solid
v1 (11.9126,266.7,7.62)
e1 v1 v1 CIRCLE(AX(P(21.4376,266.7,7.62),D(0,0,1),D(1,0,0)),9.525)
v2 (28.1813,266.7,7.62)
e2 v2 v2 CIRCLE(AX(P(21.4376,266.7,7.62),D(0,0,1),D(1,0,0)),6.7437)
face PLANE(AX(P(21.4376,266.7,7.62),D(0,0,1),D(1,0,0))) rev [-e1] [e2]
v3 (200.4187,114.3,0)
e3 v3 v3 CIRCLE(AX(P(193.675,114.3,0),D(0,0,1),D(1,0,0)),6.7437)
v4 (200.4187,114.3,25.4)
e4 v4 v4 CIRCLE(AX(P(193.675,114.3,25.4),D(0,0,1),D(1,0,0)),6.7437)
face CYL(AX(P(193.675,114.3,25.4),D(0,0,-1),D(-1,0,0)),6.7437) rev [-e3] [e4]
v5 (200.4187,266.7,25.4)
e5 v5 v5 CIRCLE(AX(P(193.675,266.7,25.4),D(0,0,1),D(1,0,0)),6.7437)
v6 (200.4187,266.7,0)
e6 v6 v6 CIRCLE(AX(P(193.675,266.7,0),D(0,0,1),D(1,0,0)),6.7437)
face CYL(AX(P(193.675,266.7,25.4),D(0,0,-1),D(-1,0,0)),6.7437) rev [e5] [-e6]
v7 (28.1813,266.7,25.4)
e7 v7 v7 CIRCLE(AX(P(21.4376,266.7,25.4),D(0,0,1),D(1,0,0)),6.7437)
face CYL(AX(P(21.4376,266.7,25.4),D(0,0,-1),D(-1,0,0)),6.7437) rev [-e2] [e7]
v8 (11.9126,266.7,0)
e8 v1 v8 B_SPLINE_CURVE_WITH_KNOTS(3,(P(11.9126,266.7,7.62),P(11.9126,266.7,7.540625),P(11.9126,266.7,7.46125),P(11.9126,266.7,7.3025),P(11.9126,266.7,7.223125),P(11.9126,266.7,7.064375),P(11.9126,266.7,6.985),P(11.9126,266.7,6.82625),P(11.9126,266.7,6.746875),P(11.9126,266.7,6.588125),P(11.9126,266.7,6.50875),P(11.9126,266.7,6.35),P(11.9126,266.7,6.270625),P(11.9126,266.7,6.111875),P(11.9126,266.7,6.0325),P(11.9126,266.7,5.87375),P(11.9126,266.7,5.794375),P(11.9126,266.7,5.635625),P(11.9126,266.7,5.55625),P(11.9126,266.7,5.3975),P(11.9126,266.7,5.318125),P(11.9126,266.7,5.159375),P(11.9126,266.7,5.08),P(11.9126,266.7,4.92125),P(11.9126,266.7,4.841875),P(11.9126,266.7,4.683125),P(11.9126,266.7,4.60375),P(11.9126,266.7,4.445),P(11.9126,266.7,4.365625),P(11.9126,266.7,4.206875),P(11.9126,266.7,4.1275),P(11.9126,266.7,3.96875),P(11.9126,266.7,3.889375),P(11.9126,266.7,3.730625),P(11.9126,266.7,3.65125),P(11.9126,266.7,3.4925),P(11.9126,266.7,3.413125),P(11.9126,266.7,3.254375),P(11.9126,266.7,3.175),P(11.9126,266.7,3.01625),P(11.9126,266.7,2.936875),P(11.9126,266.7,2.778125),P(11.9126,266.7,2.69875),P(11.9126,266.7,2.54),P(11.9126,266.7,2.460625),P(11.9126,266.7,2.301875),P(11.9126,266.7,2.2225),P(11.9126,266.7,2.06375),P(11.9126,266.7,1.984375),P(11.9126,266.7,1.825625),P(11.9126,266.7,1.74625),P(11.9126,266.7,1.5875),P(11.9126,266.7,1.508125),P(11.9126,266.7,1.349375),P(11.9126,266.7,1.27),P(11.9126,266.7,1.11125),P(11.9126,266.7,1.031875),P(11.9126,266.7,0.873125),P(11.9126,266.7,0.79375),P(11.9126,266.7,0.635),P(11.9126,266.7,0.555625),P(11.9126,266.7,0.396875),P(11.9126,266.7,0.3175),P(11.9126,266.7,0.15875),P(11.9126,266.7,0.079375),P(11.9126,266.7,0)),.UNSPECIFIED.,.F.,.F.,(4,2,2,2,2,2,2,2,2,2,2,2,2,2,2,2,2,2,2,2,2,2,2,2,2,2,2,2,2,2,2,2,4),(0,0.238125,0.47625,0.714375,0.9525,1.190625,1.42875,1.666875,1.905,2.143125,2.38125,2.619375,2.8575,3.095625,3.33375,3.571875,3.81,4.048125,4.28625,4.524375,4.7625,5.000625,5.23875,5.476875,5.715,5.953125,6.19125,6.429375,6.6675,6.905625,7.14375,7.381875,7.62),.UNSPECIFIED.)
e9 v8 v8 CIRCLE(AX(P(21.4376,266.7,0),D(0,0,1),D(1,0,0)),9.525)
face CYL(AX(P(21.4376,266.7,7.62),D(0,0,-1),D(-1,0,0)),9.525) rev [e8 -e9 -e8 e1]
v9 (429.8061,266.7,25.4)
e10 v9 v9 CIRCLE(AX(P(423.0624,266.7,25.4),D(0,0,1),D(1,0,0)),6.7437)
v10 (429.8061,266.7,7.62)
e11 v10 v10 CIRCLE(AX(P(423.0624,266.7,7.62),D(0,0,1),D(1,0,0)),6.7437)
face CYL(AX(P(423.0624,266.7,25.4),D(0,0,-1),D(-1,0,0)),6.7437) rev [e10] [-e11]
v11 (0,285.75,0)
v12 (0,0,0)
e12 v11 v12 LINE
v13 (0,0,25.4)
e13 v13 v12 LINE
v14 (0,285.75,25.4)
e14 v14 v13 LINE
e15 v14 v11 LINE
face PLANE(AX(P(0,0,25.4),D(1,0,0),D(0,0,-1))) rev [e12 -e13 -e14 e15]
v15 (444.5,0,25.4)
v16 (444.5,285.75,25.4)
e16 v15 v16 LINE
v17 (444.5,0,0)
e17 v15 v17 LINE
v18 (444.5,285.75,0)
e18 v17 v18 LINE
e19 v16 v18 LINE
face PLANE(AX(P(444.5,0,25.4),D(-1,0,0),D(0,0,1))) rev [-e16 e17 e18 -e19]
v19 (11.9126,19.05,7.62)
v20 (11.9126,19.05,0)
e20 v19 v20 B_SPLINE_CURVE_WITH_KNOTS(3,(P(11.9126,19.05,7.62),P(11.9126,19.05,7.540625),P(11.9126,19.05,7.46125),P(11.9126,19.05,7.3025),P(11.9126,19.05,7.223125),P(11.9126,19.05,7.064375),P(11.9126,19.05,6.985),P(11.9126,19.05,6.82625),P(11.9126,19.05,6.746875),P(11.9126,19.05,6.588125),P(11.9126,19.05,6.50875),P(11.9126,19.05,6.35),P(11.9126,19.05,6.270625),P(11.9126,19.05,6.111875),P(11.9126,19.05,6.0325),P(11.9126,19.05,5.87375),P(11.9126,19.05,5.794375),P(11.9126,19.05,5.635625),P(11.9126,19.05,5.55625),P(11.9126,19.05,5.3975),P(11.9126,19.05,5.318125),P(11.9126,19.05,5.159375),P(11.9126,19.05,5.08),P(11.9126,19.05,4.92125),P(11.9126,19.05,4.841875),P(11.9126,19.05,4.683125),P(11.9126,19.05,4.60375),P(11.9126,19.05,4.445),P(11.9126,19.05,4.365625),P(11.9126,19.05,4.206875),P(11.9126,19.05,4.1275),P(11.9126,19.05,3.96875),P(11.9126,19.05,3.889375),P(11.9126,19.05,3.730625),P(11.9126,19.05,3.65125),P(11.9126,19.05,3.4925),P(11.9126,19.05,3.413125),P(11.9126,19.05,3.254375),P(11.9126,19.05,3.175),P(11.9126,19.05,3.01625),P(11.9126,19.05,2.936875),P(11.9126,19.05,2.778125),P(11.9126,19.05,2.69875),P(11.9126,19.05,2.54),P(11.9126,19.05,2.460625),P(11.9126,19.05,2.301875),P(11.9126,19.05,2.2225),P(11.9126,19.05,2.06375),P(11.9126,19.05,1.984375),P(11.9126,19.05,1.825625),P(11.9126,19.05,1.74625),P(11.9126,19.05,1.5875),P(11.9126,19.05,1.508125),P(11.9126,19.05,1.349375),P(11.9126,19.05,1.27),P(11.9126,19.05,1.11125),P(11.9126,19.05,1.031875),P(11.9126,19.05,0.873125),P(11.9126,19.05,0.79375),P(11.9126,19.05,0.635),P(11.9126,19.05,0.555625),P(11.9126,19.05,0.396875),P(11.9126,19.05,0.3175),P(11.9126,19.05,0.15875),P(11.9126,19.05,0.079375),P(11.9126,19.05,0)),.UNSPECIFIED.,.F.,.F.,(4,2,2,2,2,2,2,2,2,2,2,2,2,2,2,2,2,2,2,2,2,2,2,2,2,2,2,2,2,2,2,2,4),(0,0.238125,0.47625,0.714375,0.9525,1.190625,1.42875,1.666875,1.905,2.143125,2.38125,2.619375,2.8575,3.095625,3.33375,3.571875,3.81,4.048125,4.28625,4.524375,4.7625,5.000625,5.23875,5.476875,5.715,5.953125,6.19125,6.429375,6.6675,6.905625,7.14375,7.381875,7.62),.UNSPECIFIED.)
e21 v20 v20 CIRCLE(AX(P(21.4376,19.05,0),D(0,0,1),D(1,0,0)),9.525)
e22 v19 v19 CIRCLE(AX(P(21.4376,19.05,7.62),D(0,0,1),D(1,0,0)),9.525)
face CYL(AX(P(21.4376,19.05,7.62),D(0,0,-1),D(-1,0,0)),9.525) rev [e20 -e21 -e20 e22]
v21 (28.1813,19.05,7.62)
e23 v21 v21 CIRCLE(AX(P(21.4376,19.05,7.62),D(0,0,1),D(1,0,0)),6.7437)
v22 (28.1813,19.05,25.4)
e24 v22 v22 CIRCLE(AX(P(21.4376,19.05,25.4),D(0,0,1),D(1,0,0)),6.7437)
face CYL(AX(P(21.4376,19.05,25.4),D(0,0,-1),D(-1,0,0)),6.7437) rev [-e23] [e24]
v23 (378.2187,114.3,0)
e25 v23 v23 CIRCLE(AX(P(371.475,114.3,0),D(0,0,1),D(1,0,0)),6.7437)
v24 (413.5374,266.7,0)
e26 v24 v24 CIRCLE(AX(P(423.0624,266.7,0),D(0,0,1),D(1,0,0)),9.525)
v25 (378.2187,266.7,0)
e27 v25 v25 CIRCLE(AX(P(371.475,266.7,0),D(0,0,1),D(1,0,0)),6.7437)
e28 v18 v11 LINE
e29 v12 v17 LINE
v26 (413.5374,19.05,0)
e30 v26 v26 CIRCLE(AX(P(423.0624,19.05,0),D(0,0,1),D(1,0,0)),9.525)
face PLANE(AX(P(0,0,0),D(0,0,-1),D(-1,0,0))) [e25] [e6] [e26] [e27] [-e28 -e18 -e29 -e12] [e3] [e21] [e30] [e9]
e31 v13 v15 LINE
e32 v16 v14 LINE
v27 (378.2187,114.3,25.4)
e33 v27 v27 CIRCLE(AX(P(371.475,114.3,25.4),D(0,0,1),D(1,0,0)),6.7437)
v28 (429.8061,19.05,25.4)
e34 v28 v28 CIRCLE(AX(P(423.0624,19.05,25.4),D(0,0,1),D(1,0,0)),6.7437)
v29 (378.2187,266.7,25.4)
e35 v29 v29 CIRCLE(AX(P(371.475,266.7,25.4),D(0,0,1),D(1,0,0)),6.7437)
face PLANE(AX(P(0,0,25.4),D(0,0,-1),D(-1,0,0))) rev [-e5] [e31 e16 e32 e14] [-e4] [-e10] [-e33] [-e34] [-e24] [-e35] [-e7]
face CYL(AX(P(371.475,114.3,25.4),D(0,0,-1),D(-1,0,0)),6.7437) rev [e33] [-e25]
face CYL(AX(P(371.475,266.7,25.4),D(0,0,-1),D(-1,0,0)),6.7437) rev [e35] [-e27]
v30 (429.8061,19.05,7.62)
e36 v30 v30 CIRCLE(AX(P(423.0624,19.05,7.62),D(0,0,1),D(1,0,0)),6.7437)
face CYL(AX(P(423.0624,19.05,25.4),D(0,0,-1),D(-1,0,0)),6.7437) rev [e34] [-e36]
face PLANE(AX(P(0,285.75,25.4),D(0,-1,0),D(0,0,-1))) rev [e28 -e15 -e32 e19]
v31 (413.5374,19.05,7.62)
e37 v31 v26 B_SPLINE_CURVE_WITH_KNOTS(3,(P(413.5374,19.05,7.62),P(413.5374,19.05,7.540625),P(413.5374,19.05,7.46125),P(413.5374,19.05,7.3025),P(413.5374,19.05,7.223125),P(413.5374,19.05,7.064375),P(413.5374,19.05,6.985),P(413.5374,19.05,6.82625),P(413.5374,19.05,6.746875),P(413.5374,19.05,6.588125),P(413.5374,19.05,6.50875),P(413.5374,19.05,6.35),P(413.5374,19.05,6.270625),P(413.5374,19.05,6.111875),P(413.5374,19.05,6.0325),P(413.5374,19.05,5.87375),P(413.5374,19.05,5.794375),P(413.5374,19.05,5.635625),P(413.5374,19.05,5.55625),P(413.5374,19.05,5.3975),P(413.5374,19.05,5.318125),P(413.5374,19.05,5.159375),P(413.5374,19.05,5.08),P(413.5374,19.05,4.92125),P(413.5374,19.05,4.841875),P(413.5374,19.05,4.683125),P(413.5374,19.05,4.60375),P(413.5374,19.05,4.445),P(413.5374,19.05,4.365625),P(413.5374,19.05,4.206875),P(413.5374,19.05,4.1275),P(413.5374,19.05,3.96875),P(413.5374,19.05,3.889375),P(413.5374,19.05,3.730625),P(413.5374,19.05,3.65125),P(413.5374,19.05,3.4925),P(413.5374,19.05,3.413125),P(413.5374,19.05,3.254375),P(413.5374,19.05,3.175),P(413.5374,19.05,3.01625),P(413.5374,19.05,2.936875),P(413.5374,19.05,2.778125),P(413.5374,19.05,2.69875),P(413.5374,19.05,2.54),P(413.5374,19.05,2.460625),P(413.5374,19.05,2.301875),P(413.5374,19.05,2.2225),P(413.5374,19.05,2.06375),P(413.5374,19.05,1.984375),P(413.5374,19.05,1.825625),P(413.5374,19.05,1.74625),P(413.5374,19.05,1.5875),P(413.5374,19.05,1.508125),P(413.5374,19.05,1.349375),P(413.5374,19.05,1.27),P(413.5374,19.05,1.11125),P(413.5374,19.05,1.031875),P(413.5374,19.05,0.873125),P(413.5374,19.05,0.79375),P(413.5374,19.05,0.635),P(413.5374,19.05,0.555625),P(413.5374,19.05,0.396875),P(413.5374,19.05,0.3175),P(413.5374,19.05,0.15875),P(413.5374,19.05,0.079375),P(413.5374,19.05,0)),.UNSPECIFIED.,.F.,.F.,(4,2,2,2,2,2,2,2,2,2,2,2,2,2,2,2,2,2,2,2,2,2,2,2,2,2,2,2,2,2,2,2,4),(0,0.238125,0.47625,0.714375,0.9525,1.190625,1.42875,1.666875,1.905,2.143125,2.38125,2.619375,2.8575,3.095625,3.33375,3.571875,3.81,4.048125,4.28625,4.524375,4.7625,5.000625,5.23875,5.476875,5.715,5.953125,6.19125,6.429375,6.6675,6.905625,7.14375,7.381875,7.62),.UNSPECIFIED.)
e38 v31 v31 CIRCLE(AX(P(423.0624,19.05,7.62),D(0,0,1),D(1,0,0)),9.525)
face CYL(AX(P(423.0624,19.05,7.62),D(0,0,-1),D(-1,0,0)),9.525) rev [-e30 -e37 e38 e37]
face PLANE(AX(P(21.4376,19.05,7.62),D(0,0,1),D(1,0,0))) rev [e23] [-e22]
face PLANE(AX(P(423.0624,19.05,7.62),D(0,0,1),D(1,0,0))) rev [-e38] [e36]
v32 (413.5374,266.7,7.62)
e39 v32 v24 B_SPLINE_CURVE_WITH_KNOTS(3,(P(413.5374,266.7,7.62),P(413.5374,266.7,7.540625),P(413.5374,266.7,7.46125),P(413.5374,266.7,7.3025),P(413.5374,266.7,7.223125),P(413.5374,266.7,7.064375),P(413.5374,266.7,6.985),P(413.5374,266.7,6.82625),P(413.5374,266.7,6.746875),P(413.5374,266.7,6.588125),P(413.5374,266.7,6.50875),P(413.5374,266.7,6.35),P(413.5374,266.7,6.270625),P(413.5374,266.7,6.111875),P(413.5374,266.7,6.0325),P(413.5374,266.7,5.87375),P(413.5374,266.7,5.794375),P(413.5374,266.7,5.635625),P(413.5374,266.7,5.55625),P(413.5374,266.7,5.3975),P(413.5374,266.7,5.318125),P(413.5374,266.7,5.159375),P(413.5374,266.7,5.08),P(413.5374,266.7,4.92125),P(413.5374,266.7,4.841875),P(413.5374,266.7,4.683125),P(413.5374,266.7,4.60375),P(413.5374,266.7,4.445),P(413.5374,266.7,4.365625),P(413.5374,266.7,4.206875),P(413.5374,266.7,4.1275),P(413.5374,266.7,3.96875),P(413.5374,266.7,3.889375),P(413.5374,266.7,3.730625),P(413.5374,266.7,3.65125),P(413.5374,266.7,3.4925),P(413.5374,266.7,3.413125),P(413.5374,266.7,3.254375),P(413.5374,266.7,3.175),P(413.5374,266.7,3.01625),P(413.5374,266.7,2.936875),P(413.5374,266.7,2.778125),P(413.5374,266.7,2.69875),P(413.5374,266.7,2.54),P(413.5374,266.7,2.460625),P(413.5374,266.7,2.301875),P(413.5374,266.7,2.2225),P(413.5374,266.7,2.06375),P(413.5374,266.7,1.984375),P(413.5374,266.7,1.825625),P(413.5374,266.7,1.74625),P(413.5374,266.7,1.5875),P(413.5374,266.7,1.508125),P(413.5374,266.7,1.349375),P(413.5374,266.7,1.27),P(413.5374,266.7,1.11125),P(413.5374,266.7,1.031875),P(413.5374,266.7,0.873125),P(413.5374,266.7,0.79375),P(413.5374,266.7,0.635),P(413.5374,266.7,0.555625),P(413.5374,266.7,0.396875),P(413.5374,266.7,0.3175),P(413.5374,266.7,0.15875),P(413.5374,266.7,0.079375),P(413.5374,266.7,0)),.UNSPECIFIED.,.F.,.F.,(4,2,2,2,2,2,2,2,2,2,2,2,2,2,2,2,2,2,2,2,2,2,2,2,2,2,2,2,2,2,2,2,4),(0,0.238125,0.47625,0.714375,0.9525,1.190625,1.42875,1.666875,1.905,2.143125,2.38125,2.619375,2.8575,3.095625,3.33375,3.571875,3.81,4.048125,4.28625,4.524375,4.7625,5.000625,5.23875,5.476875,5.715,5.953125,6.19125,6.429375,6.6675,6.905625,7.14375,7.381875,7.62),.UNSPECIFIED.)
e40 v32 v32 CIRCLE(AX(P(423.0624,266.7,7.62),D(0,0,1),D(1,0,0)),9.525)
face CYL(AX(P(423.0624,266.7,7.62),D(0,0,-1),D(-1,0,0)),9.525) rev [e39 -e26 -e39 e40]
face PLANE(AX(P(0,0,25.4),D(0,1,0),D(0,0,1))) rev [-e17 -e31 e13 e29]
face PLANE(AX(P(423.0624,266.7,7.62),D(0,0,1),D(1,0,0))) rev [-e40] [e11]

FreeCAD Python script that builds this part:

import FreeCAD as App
import Part
import Sketcher
Q = App.Units.Quantity

doc = App.newDocument("Part")
body = doc.addObject("PartDesign::Body", "Body")

sketch1 = doc.addObject("Sketcher::SketchObject", "Sketch")
body.addObject(sketch1)
sketch1.AttachmentSupport = (doc.XY_Plane, [""])
sketch1.MapMode = "FlatFace"
sketch1.addGeometry([
    Part.LineSegment(App.Vector(0, 286, 0), App.Vector(0, 0, 0)),
    Part.LineSegment(App.Vector(0, 0, 0), App.Vector(444, 0, 0)),
    Part.LineSegment(App.Vector(444, 0, 0), App.Vector(444, 286, 0)),
    Part.LineSegment(App.Vector(444, 286, 0), App.Vector(0, 286, 0)),
], False)
sketch1.addConstraint([
    Sketcher.Constraint("Coincident", 0, 2, 1, 1),
    Sketcher.Constraint("Coincident", 1, 2, 2, 1),
    Sketcher.Constraint("Coincident", 2, 2, 3, 1),
    Sketcher.Constraint("Coincident", 3, 2, 0, 1),
    Sketcher.Constraint("Vertical", 0),
    Sketcher.Constraint("Horizontal", 1),
    Sketcher.Constraint("Vertical", 2),
    Sketcher.Constraint("Horizontal", 3),
    Sketcher.Constraint("Coincident", 0, 2, -1, 1),
    Sketcher.Constraint("DistanceX", 1, 1, 1, 2, Q("17.5 in")),
    Sketcher.Constraint("DistanceY", 0, 2, 0, 1, Q("11.25 in")),
])
pad1 = doc.addObject("PartDesign::Pad", "Pad")
body.addObject(pad1)
pad1.Profile = sketch1
pad1.Length = Q("1 in")

sketch2 = doc.addObject("Sketcher::SketchObject", "Sketch001")
body.addObject(sketch2)
sketch2.AttachmentSupport = (doc.XY_Plane, [""])
sketch2.MapMode = "FlatFace"
sketch2.addGeometry([
    Part.Circle(App.Vector(21, 267, 0), App.Vector(0, 0, 1), 7),
    Part.Circle(App.Vector(423, 267, 0), App.Vector(0, 0, 1), 7),
    Part.Circle(App.Vector(21, 19, 0), App.Vector(0, 0, 1), 7),
    Part.Circle(App.Vector(423, 19, 0), App.Vector(0, 0, 1), 7),
], False)
sketch2.addConstraint([
    Sketcher.Constraint("Equal", 0, 1),
    Sketcher.Constraint("Equal", 1, 2),
    Sketcher.Constraint("Equal", 2, 3),
    Sketcher.Constraint("Horizontal", 0, 3, 1, 3),
    Sketcher.Constraint("Horizontal", 2, 3, 3, 3),
    Sketcher.Constraint("Vertical", 0, 3, 2, 3),
    Sketcher.Constraint("Vertical", 1, 3, 3, 3),
    Sketcher.Constraint("Diameter", 0, Q("0.531 in")),
    Sketcher.Constraint("DistanceY", -1, 1, 0, 3, Q("10.5 in")),
    Sketcher.Constraint("DistanceY", -1, 1, 2, 3, Q("0.75 in")),
    Sketcher.Constraint("DistanceX", -1, 1, 0, 3, Q("0.844 in")),
    Sketcher.Constraint("DistanceX", -1, 1, 1, 3, Q("16.656 in")),
])
pocket1 = doc.addObject("PartDesign::Pocket", "Pocket")
body.addObject(pocket1)
pocket1.Profile = sketch2
pocket1.Type = "ThroughAll"
pocket1.Reversed = True

sketch3 = doc.addObject("Sketcher::SketchObject", "Sketch002")
body.addObject(sketch3)
sketch3.AttachmentSupport = (doc.XY_Plane, [""])
sketch3.MapMode = "FlatFace"
sketch3.addGeometry([
    Part.Circle(App.Vector(21, 267, 0), App.Vector(0, 0, 1), 10),
    Part.Circle(App.Vector(423, 267, 0), App.Vector(0, 0, 1), 10),
    Part.Circle(App.Vector(21, 19, 0), App.Vector(0, 0, 1), 10),
    Part.Circle(App.Vector(423, 19, 0), App.Vector(0, 0, 1), 10),
], False)
sketch3.addConstraint([
    Sketcher.Constraint("Equal", 0, 1),
    Sketcher.Constraint("Equal", 1, 2),
    Sketcher.Constraint("Equal", 2, 3),
    Sketcher.Constraint("Horizontal", 0, 3, 1, 3),
    Sketcher.Constraint("Horizontal", 2, 3, 3, 3),
    Sketcher.Constraint("Vertical", 0, 3, 2, 3),
    Sketcher.Constraint("Vertical", 1, 3, 3, 3),
    Sketcher.Constraint("Diameter", 0, Q("0.75 in")),
    Sketcher.Constraint("DistanceY", -1, 1, 0, 3, Q("10.5 in")),
    Sketcher.Constraint("DistanceY", -1, 1, 2, 3, Q("0.75 in")),
    Sketcher.Constraint("DistanceX", -1, 1, 0, 3, Q("0.844 in")),
    Sketcher.Constraint("DistanceX", -1, 1, 1, 3, Q("16.656 in")),
])
pocket2 = doc.addObject("PartDesign::Pocket", "Pocket001")
body.addObject(pocket2)
pocket2.Profile = sketch3
pocket2.Length = Q("0.3 in")
pocket2.Reversed = True

sketch4 = doc.addObject("Sketcher::SketchObject", "Sketch003")
body.addObject(sketch4)
sketch4.AttachmentSupport = (doc.XY_Plane, [""])
sketch4.MapMode = "FlatFace"
sketch4.addGeometry([
    Part.Circle(App.Vector(194, 114, 0), App.Vector(0, 0, 1), 7),
    Part.Circle(App.Vector(371, 114, 0), App.Vector(0, 0, 1), 7),
    Part.Circle(App.Vector(194, 267, 0), App.Vector(0, 0, 1), 7),
    Part.Circle(App.Vector(371, 267, 0), App.Vector(0, 0, 1), 7),
], False)
sketch4.addConstraint([
    Sketcher.Constraint("Equal", 0, 1),
    Sketcher.Constraint("Equal", 1, 2),
    Sketcher.Constraint("Equal", 2, 3),
    Sketcher.Constraint("Horizontal", 0, 3, 1, 3),
    Sketcher.Constraint("Horizontal", 2, 3, 3, 3),
    Sketcher.Constraint("Vertical", 0, 3, 2, 3),
    Sketcher.Constraint("Vertical", 1, 3, 3, 3),
    Sketcher.Constraint("Diameter", 0, Q("0.531 in")),
    Sketcher.Constraint("DistanceX", 0, 3, 1, 3, Q("7 in")),
    Sketcher.Constraint("DistanceY", 0, 3, 2, 3, Q("6 in")),
    Sketcher.Constraint("DistanceY", -1, 1, 0, 3, Q("4.5 in")),
    Sketcher.Constraint("DistanceX", -1, 1, 0, 3, Q("7.625 in")),
])
pocket3 = doc.addObject("PartDesign::Pocket", "Pocket002")
body.addObject(pocket3)
pocket3.Profile = sketch4
pocket3.Type = "ThroughAll"
pocket3.Reversed = True

doc.recompute()
